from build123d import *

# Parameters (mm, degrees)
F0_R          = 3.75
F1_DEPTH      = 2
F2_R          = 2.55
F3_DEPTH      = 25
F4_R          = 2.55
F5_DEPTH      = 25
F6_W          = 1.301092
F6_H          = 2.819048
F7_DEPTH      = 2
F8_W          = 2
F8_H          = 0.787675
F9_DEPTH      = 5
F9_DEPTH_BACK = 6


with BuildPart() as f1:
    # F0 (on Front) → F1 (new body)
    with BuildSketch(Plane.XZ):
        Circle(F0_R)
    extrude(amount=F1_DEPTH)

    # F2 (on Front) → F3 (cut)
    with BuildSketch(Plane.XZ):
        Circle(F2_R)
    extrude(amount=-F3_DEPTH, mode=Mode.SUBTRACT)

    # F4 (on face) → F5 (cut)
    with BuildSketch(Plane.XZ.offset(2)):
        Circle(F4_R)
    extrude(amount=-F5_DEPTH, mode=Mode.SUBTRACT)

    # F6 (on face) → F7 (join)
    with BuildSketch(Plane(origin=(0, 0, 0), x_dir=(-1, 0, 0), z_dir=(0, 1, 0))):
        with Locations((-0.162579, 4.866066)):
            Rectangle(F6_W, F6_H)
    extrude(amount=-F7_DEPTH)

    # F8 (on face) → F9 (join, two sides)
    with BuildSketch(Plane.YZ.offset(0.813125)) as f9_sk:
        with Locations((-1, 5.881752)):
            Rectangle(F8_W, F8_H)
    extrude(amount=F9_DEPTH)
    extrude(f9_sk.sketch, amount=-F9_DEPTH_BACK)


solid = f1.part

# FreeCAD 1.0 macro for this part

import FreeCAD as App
import Part
import Sketcher
Q = App.Units.Quantity

doc = App.newDocument("Part")
body = doc.addObject("PartDesign::Body", "Body")

# Sketch on XZ plane
sketch1 = doc.addObject("Sketcher::SketchObject", "Sketch")
body.addObject(sketch1)
sketch1.AttachmentSupport = (doc.XZ_Plane, [""])
sketch1.MapMode = "FlatFace"
sketch1.addGeometry(Part.Circle(App.Vector(0, 0, 0), App.Vector(0, 0, 1), 3.8), False)
sketch1.addConstraint(Sketcher.Constraint("Coincident", 0, 3, -1, 1))
sketch1.addConstraint(Sketcher.Constraint("Diameter", 0, Q("7.5 mm")))
pad1 = doc.addObject("PartDesign::Pad", "Pad")
body.addObject(pad1)
pad1.Profile = sketch1
pad1.Length = 2

# Sketch on XZ plane
sketch2 = doc.addObject("Sketcher::SketchObject", "Sketch001")
body.addObject(sketch2)
sketch2.AttachmentSupport = (doc.XZ_Plane, [""])
sketch2.MapMode = "FlatFace"
sketch2.addGeometry(Part.Circle(App.Vector(0, 0, 0), App.Vector(0, 0, 1), 2.5), False)
sketch2.addConstraint(Sketcher.Constraint("Coincident", 0, 3, -1, 1))
sketch2.addConstraint(Sketcher.Constraint("Diameter", 0, Q("5.1 mm")))
pocket1 = doc.addObject("PartDesign::Pocket", "Pocket")
body.addObject(pocket1)
pocket1.Profile = sketch2
pocket1.Length = 25

# Sketch on XZ plane
sketch3 = doc.addObject("Sketcher::SketchObject", "Sketch002")
body.addObject(sketch3)
sketch3.AttachmentSupport = (doc.XZ_Plane, [""])
sketch3.MapMode = "FlatFace"
sketch3.AttachmentOffset = App.Placement(App.Vector(0, 0, 2), App.Rotation())
sketch3.addGeometry(Part.Circle(App.Vector(0, 0, 0), App.Vector(0, 0, 1), 2.5), False)
sketch3.addConstraint(Sketcher.Constraint("Coincident", 0, 3, -1, 1))
sketch3.addConstraint(Sketcher.Constraint("Diameter", 0, Q("5.1 mm")))
pocket2 = doc.addObject("PartDesign::Pocket", "Pocket001")
body.addObject(pocket2)
pocket2.Profile = sketch3
pocket2.Length = 25

# Sketch on XZ plane
sketch4 = doc.addObject("Sketcher::SketchObject", "Sketch003")
body.addObject(sketch4)
sketch4.AttachmentSupport = (doc.XZ_Plane, [""])
sketch4.MapMode = "FlatFace"
sketch4.addGeometry(Part.LineSegment(App.Vector(0.8, 6.3, 0), App.Vector(0.8, 3.5, 0)), False)
sketch4.addGeometry(Part.LineSegment(App.Vector(0.8, 3.5, 0), App.Vector(-0.5, 3.5, 0)), False)
sketch4.addGeometry(Part.LineSegment(App.Vector(-0.5, 3.5, 0), App.Vector(-0.5, 6.3, 0)), False)
sketch4.addGeometry(Part.LineSegment(App.Vector(-0.5, 6.3, 0), App.Vector(0.8, 6.3, 0)), False)
sketch4.addConstraint(Sketcher.Constraint("Coincident", 0, 2, 1, 1))
sketch4.addConstraint(Sketcher.Constraint("Coincident", 1, 2, 2, 1))
sketch4.addConstraint(Sketcher.Constraint("Coincident", 2, 2, 3, 1))
sketch4.addConstraint(Sketcher.Constraint("Coincident", 3, 2, 0, 1))
sketch4.addConstraint(Sketcher.Constraint("Vertical", 0))
sketch4.addConstraint(Sketcher.Constraint("Horizontal", 1))
sketch4.addConstraint(Sketcher.Constraint("Vertical", 2))
sketch4.addConstraint(Sketcher.Constraint("Horizontal", 3))
sketch4.addConstraint(Sketcher.Constraint("DistanceX", 1, 2, 1, 1, Q("1.301092 mm")))
sketch4.addConstraint(Sketcher.Constraint("DistanceY", 0, 2, 0, 1, Q("2.819048 mm")))
sketch4.addConstraint(Sketcher.Constraint("DistanceY", -1, 1, 0, 2, Q("3.456542 mm")))
sketch4.addConstraint(Sketcher.Constraint("DistanceX", -1, 1, 0, 2, Q("0.813125 mm")))
pad2 = doc.addObject("PartDesign::Pad", "Pad001")
body.addObject(pad2)
pad2.Profile = sketch4
pad2.Length = 2

# Sketch on YZ plane
sketch5 = doc.addObject("Sketcher::SketchObject", "Sketch004")
body.addObject(sketch5)
sketch5.AttachmentSupport = (doc.YZ_Plane, [""])
sketch5.MapMode = "FlatFace"
sketch5.AttachmentOffset = App.Placement(App.Vector(0, 0, 0.813125), App.Rotation())
sketch5.addGeometry(Part.LineSegment(App.Vector(-2, 6.3, 0), App.Vector(-2, 5.5, 0)), False)
sketch5.addGeometry(Part.LineSegment(App.Vector(-2, 5.5, 0), App.Vector(0, 5.5, 0)), False)
sketch5.addGeometry(Part.LineSegment(App.Vector(0, 5.5, 0), App.Vector(0, 6.3, 0)), False)
sketch5.addGeometry(Part.LineSegment(App.Vector(0, 6.3, 0), App.Vector(-2, 6.3, 0)), False)
sketch5.addConstraint(Sketcher.Constraint("Coincident", 0, 2, 1, 1))
sketch5.addConstraint(Sketcher.Constraint("Coincident", 1, 2, 2, 1))
sketch5.addConstraint(Sketcher.Constraint("Coincident", 2, 2, 3, 1))
sketch5.addConstraint(Sketcher.Constraint("Coincident", 3, 2, 0, 1))
sketch5.addConstraint(Sketcher.Constraint("Vertical", 0))
sketch5.addConstraint(Sketcher.Constraint("Horizontal", 1))
sketch5.addConstraint(Sketcher.Constraint("Vertical", 2))
sketch5.addConstraint(Sketcher.Constraint("Horizontal", 3))
sketch5.addConstraint(Sketcher.Constraint("PointOnObject", 1, 2, -2))
sketch5.addConstraint(Sketcher.Constraint("DistanceX", 1, 1, 1, 2, Q("2 mm")))
sketch5.addConstraint(Sketcher.Constraint("DistanceY", 0, 2, 0, 1, Q("0.787675 mm")))
sketch5.addConstraint(Sketcher.Constraint("DistanceY", -1, 1, 2, 2, Q("6.275589 mm")))
pad3 = doc.addObject("PartDesign::Pad", "Pad002")
body.addObject(pad3)
pad3.Profile = sketch5
pad3.Type = "TwoLengths"
pad3.Length = 5
pad3.Length2 = 6

doc.recompute()
